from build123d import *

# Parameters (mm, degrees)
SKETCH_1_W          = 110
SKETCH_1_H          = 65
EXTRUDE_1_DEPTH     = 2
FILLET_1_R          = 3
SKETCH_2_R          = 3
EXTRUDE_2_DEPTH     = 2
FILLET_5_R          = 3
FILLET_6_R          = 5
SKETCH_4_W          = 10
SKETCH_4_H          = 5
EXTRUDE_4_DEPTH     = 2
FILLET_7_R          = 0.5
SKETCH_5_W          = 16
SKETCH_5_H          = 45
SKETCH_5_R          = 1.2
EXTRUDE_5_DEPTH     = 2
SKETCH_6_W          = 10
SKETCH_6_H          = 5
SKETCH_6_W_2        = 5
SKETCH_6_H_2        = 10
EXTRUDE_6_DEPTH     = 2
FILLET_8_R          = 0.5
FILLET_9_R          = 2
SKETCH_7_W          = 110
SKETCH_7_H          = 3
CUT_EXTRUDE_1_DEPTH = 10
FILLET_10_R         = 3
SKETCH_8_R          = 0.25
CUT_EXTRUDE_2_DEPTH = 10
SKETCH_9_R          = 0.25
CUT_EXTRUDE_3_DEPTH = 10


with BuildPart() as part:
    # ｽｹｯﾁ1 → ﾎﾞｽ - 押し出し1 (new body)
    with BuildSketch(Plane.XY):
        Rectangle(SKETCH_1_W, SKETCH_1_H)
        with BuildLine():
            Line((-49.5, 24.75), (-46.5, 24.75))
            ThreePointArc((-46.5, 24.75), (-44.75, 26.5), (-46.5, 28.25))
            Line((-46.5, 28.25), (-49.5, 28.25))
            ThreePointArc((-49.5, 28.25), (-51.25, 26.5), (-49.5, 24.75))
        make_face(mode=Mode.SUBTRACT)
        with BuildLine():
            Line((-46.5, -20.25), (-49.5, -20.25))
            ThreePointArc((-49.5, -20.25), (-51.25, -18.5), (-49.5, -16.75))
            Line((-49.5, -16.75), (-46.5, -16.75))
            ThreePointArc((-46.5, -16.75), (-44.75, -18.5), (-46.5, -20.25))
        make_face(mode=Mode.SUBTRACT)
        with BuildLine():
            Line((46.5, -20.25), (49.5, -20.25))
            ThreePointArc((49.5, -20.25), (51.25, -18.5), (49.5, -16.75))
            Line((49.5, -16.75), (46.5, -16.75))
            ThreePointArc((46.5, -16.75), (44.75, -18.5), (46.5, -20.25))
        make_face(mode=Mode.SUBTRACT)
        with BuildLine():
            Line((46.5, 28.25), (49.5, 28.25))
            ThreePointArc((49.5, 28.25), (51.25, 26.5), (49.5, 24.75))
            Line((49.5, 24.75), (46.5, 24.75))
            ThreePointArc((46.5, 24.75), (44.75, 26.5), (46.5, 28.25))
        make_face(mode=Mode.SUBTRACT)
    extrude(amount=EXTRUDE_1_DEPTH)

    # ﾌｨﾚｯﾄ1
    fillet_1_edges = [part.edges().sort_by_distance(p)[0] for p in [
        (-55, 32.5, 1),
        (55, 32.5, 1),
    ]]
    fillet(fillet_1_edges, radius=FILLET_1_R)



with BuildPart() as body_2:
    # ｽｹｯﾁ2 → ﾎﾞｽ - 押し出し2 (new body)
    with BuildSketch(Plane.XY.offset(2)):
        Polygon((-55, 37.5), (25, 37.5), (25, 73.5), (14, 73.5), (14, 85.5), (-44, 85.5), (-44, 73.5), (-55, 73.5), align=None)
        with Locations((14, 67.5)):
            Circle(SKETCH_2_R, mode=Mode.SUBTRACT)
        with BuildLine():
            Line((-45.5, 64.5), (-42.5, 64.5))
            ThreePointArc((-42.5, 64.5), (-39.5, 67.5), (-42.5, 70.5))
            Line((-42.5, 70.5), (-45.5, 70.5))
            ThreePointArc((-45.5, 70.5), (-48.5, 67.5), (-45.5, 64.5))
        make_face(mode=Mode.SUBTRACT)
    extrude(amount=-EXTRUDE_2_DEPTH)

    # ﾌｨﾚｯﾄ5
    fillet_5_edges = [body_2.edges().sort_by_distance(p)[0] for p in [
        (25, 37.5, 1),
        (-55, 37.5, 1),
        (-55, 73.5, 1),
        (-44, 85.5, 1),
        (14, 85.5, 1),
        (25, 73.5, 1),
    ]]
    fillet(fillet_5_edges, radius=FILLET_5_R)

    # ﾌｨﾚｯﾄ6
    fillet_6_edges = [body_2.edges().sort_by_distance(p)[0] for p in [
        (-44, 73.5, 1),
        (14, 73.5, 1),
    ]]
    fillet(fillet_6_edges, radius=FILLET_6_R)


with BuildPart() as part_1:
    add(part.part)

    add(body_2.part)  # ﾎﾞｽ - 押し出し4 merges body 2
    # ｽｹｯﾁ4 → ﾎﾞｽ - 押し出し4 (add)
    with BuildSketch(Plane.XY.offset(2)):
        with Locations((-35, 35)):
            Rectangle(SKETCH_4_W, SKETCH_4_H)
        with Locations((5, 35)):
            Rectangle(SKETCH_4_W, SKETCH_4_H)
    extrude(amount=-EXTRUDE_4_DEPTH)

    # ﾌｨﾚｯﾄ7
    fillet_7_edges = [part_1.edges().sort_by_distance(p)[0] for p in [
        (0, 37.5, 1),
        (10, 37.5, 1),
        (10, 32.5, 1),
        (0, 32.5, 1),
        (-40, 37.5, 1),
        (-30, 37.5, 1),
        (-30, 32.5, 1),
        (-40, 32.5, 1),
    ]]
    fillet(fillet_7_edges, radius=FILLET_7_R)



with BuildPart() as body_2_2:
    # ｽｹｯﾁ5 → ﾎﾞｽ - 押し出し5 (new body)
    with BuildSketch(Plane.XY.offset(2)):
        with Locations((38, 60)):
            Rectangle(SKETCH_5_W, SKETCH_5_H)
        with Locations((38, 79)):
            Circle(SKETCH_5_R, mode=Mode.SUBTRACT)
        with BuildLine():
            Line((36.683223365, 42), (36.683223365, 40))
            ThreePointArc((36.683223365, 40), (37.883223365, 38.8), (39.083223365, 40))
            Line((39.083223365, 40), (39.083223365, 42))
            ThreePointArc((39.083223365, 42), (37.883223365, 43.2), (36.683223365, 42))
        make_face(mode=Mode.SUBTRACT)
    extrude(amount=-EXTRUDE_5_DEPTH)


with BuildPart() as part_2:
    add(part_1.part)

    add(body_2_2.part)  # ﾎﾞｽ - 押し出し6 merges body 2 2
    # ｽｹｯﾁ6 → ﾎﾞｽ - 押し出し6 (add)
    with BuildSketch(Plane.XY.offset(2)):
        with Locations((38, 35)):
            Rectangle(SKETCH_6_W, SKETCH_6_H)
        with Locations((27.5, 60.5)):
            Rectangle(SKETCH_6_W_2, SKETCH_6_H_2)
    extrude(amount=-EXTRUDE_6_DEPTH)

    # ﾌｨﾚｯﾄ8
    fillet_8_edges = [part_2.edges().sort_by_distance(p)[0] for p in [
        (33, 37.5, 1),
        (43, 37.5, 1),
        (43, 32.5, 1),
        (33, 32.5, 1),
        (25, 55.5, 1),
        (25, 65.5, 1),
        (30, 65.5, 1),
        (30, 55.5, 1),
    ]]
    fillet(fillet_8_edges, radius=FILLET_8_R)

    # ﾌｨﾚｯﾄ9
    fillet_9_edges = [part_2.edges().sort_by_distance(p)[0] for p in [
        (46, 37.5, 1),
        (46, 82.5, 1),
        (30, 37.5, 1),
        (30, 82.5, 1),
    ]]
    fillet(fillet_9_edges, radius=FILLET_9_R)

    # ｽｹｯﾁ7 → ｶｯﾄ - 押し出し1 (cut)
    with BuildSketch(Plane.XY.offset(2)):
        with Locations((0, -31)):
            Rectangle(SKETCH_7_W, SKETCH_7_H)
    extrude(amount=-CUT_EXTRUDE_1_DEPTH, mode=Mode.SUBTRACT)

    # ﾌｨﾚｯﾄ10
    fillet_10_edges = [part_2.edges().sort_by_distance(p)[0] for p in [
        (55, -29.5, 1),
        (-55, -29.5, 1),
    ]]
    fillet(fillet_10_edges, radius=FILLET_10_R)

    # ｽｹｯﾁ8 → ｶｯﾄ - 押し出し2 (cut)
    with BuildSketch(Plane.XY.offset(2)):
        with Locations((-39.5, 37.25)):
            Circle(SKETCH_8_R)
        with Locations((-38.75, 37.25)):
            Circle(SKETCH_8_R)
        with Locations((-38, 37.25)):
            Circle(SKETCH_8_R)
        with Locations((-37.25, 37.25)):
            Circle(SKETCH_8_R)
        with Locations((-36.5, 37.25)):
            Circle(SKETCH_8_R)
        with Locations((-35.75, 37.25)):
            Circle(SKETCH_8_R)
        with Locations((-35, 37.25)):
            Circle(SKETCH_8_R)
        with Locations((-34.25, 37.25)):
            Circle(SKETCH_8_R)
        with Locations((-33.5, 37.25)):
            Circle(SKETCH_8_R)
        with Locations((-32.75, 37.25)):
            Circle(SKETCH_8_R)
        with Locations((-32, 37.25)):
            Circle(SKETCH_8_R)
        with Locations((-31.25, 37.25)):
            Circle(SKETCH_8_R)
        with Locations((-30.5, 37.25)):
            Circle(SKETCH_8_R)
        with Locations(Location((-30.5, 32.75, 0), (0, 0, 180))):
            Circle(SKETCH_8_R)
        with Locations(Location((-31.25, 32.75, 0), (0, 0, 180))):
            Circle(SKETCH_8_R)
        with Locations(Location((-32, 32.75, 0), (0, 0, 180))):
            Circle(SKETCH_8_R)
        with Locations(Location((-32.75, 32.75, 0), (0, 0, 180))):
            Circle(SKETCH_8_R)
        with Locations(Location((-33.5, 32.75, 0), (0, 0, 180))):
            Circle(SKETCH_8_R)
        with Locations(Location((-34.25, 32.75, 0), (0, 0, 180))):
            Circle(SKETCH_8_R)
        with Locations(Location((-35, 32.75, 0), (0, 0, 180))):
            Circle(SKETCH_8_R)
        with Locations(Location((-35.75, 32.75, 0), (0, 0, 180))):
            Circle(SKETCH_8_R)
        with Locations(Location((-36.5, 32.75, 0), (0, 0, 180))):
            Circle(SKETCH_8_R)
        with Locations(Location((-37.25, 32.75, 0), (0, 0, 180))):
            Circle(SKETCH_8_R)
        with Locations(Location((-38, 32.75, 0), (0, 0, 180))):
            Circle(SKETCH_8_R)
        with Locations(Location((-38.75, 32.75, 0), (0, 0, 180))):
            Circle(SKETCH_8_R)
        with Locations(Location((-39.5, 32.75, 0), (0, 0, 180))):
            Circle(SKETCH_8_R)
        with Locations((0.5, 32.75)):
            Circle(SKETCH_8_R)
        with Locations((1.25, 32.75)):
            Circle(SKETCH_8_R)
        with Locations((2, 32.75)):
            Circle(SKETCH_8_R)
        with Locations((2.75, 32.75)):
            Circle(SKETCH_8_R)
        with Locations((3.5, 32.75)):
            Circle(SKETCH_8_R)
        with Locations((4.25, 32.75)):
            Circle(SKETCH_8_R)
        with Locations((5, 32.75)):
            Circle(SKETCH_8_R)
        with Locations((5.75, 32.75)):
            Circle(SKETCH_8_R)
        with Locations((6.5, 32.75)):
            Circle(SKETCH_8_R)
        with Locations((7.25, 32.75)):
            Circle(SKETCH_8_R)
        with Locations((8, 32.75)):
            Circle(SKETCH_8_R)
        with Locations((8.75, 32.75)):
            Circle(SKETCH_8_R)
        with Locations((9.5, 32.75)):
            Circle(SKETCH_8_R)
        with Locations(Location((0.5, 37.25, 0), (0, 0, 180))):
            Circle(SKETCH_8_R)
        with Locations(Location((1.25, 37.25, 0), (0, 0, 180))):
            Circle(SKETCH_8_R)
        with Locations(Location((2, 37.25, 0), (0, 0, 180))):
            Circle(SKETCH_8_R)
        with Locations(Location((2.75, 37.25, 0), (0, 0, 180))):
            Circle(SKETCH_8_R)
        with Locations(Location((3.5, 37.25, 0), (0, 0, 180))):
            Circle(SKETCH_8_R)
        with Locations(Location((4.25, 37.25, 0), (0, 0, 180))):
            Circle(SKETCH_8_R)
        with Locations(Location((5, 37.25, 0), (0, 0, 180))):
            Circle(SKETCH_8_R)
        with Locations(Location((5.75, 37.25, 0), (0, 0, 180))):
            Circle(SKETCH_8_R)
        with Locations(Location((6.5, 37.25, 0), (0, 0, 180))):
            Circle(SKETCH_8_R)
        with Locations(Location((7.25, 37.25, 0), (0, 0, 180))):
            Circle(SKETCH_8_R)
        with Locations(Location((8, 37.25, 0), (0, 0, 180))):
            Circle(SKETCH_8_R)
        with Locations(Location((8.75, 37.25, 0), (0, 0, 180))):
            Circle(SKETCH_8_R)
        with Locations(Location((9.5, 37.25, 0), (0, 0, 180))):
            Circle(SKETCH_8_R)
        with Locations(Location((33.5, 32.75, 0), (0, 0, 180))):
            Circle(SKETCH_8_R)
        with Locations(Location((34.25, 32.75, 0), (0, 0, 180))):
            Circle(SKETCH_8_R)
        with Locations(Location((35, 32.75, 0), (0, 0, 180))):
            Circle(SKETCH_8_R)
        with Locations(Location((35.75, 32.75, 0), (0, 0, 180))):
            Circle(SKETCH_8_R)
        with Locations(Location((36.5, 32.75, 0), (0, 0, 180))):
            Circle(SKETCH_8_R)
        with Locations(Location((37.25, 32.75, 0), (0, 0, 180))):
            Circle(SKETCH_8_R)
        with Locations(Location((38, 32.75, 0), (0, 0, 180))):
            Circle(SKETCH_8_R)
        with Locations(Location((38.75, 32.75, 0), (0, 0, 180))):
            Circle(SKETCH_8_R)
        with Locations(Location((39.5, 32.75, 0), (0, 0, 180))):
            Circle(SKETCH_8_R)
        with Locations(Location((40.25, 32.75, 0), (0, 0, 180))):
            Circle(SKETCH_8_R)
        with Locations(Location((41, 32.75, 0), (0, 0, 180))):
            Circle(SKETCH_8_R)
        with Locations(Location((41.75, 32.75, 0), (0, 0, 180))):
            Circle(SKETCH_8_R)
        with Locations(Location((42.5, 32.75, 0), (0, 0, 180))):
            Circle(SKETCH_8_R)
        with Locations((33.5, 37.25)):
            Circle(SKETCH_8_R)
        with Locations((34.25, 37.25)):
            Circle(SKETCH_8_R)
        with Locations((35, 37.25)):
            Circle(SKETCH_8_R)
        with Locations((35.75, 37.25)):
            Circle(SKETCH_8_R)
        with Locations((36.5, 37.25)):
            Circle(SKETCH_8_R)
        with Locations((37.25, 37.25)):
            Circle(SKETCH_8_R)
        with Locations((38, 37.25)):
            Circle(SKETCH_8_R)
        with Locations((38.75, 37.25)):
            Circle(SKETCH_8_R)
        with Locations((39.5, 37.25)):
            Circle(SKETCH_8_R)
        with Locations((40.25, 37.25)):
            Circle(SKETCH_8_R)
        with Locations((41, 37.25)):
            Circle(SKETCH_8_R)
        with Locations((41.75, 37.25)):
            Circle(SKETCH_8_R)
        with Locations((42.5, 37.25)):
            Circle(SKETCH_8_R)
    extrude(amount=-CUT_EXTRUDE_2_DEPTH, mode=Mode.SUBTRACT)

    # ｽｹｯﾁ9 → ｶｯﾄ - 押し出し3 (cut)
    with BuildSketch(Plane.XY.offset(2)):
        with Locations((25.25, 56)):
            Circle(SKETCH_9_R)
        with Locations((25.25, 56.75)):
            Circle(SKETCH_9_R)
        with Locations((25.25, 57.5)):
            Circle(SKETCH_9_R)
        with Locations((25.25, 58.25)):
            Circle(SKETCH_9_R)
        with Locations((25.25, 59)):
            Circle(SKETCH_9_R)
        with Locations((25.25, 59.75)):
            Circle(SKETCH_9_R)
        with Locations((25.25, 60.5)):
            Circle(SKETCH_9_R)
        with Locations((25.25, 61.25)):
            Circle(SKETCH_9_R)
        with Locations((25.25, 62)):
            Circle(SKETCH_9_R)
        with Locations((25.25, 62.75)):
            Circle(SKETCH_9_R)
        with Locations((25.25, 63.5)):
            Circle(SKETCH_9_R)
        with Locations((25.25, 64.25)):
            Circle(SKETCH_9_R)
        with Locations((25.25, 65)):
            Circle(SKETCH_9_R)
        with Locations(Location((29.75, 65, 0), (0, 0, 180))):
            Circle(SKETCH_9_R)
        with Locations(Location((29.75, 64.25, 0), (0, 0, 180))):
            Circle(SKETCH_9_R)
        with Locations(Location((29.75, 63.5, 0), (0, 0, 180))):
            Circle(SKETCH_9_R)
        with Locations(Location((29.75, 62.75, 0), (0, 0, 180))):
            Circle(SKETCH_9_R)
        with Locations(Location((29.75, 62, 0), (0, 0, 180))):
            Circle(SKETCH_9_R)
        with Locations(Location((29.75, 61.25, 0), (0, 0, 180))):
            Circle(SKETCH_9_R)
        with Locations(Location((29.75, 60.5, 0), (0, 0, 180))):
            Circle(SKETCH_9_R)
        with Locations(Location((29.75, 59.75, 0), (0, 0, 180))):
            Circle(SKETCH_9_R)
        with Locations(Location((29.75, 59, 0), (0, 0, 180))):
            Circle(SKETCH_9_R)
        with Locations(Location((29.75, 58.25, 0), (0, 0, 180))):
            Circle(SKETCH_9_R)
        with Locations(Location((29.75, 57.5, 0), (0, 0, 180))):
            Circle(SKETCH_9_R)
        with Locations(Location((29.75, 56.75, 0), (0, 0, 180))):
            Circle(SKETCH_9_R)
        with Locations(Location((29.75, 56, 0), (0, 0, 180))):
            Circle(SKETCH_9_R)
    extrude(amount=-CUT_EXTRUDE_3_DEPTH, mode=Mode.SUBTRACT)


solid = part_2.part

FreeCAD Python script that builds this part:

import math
import FreeCAD as App
import Part
import Sketcher

V = App.Vector
Q = App.Units.Quantity


def edges_at(feature, points):
    """Names of the edges that pass closest to the given points."""
    edges = feature.Shape.Edges
    near = lambda p: min(range(len(edges)), key=lambda i: edges[i].distToShape(Part.Vertex(*p))[0])
    return sorted({f"Edge{near(p) + 1}" for p in points})


def add_polygon(sketch, points):
    """Adds a closed chain of lines whose ends are joined by coincident constraints."""
    first, n = sketch.GeometryCount, len(points)
    for a, b in zip(points, points[1:] + points[:1]):
        sketch.addGeometry(Part.LineSegment(App.Vector(*a, 0), App.Vector(*b, 0)), False)
    for i in range(n):
        sketch.addConstraint(Sketcher.Constraint("Coincident", first + i, 2, first + (i + 1) % n, 1))

doc = App.newDocument("Part")
body = doc.addObject("PartDesign::Body", "Body")

sketch1 = body.newObject("Sketcher::SketchObject", "Sketch")
sketch1.AttachmentSupport = (doc.getObject("XY_Plane"), [""])
sketch1.MapMode = "FlatFace"
add_polygon(sketch1, [(-55, 32.5), (-55, -32.5), (55, -32.5), (55, 32.5)])
sketch1.addGeometry(Part.ArcOfCircle(Part.Circle(V(-46.5, -18.5, 0), V(0, 0, 1), 1.75), math.radians(-90), math.radians(90)), False)
sketch1.addGeometry(Part.LineSegment(V(-46.5, -20.25, 0), V(-49.5, -20.25, 0)), False)
sketch1.addGeometry(Part.ArcOfCircle(Part.Circle(V(-49.5, -18.5, 0), V(0, 0, 1), 1.75), math.radians(90), math.radians(270)), False)
sketch1.addGeometry(Part.LineSegment(V(-49.5, -16.75, 0), V(-46.5, -16.75, 0)), False)
sketch1.addGeometry(Part.LineSegment(V(49.5, -20.25, 0), V(46.5, -20.25, 0)), False)
sketch1.addGeometry(Part.ArcOfCircle(Part.Circle(V(46.5, -18.5, 0), V(0, 0, 1), 1.75), math.radians(90), math.radians(270)), False)
sketch1.addGeometry(Part.LineSegment(V(46.5, -16.75, 0), V(49.5, -16.75, 0)), False)
sketch1.addGeometry(Part.ArcOfCircle(Part.Circle(V(49.5, -18.5, 0), V(0, 0, 1), 1.75), math.radians(-90), math.radians(90)), False)
sketch1.addGeometry(Part.LineSegment(V(-46.5, 24.75, 0), V(-49.5, 24.75, 0)), False)
sketch1.addGeometry(Part.ArcOfCircle(Part.Circle(V(-49.5, 26.5, 0), V(0, 0, 1), 1.75), math.radians(90), math.radians(270)), False)
sketch1.addGeometry(Part.LineSegment(V(-49.5, 28.25, 0), V(-46.5, 28.25, 0)), False)
sketch1.addGeometry(Part.ArcOfCircle(Part.Circle(V(-46.5, 26.5, 0), V(0, 0, 1), 1.75), math.radians(-90), math.radians(90)), False)
sketch1.addGeometry(Part.ArcOfCircle(Part.Circle(V(46.5, 26.5, 0), V(0, 0, 1), 1.75), math.radians(90), math.radians(270)), False)
sketch1.addGeometry(Part.LineSegment(V(46.5, 28.25, 0), V(49.5, 28.25, 0)), False)
sketch1.addGeometry(Part.ArcOfCircle(Part.Circle(V(49.5, 26.5, 0), V(0, 0, 1), 1.75), math.radians(-90), math.radians(90)), False)
sketch1.addGeometry(Part.LineSegment(V(49.5, 24.75, 0), V(46.5, 24.75, 0)), False)
sketch1.addConstraint([
    Sketcher.Constraint("Tangent", 4, 1, 5, 1),
    Sketcher.Constraint("Tangent", 5, 2, 6, 2),
    Sketcher.Constraint("Tangent", 6, 1, 7, 1),
    Sketcher.Constraint("Tangent", 7, 2, 4, 2),
    Sketcher.Constraint("Tangent", 8, 2, 9, 2),
    Sketcher.Constraint("Tangent", 9, 1, 10, 1),
    Sketcher.Constraint("Tangent", 10, 2, 11, 2),
    Sketcher.Constraint("Tangent", 11, 1, 8, 1),
    Sketcher.Constraint("Tangent", 12, 2, 13, 2),
    Sketcher.Constraint("Tangent", 13, 1, 14, 1),
    Sketcher.Constraint("Tangent", 14, 2, 15, 2),
    Sketcher.Constraint("Tangent", 15, 1, 12, 1),
    Sketcher.Constraint("Tangent", 16, 1, 17, 1),
    Sketcher.Constraint("Tangent", 17, 2, 18, 2),
    Sketcher.Constraint("Tangent", 18, 1, 19, 1),
    Sketcher.Constraint("Tangent", 19, 2, 16, 2),
    Sketcher.Constraint("Vertical", 0),
    Sketcher.Constraint("Horizontal", 1),
    Sketcher.Constraint("Vertical", 2),
    Sketcher.Constraint("Horizontal", 3),
    Sketcher.Constraint("Horizontal", 5),
    Sketcher.Constraint("Horizontal", 7),
    Sketcher.Constraint("Horizontal", 8),
    Sketcher.Constraint("Horizontal", 10),
    Sketcher.Constraint("Horizontal", 12),
    Sketcher.Constraint("Horizontal", 14),
    Sketcher.Constraint("Horizontal", 17),
    Sketcher.Constraint("Horizontal", 19),
    Sketcher.Constraint("Equal", 6, 9),
    Sketcher.Constraint("Equal", 11, 13),
    Sketcher.Constraint("Equal", 15, 16),
    Sketcher.Constraint("Symmetric", 0, 2, 2, 2, -1, 1),
    Sketcher.Constraint("Symmetric", 4, 3, 9, 3, -2),
    Sketcher.Constraint("Symmetric", 15, 3, 16, 3, -2),
    Sketcher.Constraint("Vertical", 6, 3, 13, 3),
    Sketcher.Constraint("Vertical", 4, 3, 15, 3),
    Sketcher.Constraint("Vertical", 11, 3, 18, 3),
    Sketcher.Constraint("Equal", 7, 8),
    Sketcher.Constraint("DistanceX", 1, 1, 1, 2, Q("110 mm")),
    Sketcher.Constraint("DistanceX", 5, 2, 5, 1, Q("3 mm")),
    Sketcher.Constraint("DistanceY", 0, 2, 0, 1, Q("65 mm")),
    Sketcher.Constraint("Radius", 4, Q("1.75 mm")),
    Sketcher.Constraint("DistanceX", 4, 3, 9, 3, Q("93 mm")),
    Sketcher.Constraint("DistanceY", 6, 3, 13, 3, Q("45 mm")),
    Sketcher.Constraint("DistanceY", 0, 2, 6, 3, Q("14 mm")),
])
pad1 = body.newObject("PartDesign::Pad", "Pad")
pad1.Profile = sketch1
pad1.Length = 2
doc.recompute()

fillet = body.newObject("PartDesign::Fillet", "Fillet")
fillet.Base = (pad1, edges_at(pad1, [(-55, 32.5, 1), (55, 32.5, 1)]))
fillet.Radius = 3
body2 = doc.addObject("PartDesign::Body", "Body001")

sketch2 = body2.newObject("Sketcher::SketchObject", "Sketch001")
sketch2.AttachmentSupport = (doc.getObject("XY_Plane001"), [""])
sketch2.MapMode = "FlatFace"
sketch2.AttachmentOffset = App.Placement(V(0, 0, 2), App.Rotation())
add_polygon(sketch2, [(-55, 37.5), (25, 37.5), (25, 73.5), (14, 73.5), (14, 85.5), (-44, 85.5), (-44, 73.5), (-55, 73.5)])
sketch2.addGeometry(Part.LineSegment(V(-42.5, 64.5, 0), V(-45.5, 64.5, 0)), False)
sketch2.addGeometry(Part.ArcOfCircle(Part.Circle(V(-45.5, 67.5, 0), V(0, 0, 1), 3), math.radians(90), math.radians(270)), False)
sketch2.addGeometry(Part.LineSegment(V(-45.5, 70.5, 0), V(-42.5, 70.5, 0)), False)
sketch2.addGeometry(Part.ArcOfCircle(Part.Circle(V(-42.5, 67.5, 0), V(0, 0, 1), 3), math.radians(-90), math.radians(90)), False)
sketch2.addGeometry(Part.Circle(V(14, 67.5, 0), V(0, 0, 1), 3), False)
sketch2.addConstraint([
    Sketcher.Constraint("Tangent", 8, 2, 9, 2),
    Sketcher.Constraint("Tangent", 9, 1, 10, 1),
    Sketcher.Constraint("Tangent", 10, 2, 11, 2),
    Sketcher.Constraint("Tangent", 11, 1, 8, 1),
    Sketcher.Constraint("Horizontal", 0),
    Sketcher.Constraint("Vertical", 1),
    Sketcher.Constraint("Horizontal", 2),
    Sketcher.Constraint("Vertical", 3),
    Sketcher.Constraint("Horizontal", 4),
    Sketcher.Constraint("Vertical", 5),
    Sketcher.Constraint("Horizontal", 6),
    Sketcher.Constraint("Vertical", 7),
    Sketcher.Constraint("Horizontal", 8),
    Sketcher.Constraint("Horizontal", 10),
    Sketcher.Constraint("Equal", 11, 12),
    Sketcher.Constraint("Horizontal", 11, 3, 12, 3),
    Sketcher.Constraint("Horizontal", 2, 2, 5, 2),
    Sketcher.Constraint("Vertical", 12, 3, 2, 2),
    Sketcher.Constraint("Equal", 2, 6),
    Sketcher.Constraint("Diameter", 12, Q("6 mm")),
    Sketcher.Constraint("DistanceX", 0, 1, 0, 2, Q("80 mm")),
    Sketcher.Constraint("DistanceX", 2, 2, 2, 1, Q("11 mm")),
    Sketcher.Constraint("DistanceX", 8, 2, 8, 1, Q("3 mm")),
    Sketcher.Constraint("DistanceY", 1, 1, 1, 2, Q("36 mm")),
    Sketcher.Constraint("DistanceY", 3, 1, 3, 2, Q("12 mm")),
    Sketcher.Constraint("DistanceX", -1, 1, 12, 3, Q("14 mm")),
    Sketcher.Constraint("DistanceY", 0, 2, 12, 3, Q("30 mm")),
    Sketcher.Constraint("DistanceX", 9, 3, -1, 1, Q("45.5 mm")),
    Sketcher.Constraint("DistanceY", -1, 1, 9, 3, Q("67.5 mm")),
])
pad2 = body2.newObject("PartDesign::Pad", "Pad001")
pad2.Profile = sketch2
pad2.Length = 2
pad2.Reversed = True
doc.recompute()

fillet2 = body2.newObject("PartDesign::Fillet", "Fillet001")
fillet2.Base = (pad2, edges_at(pad2, [
    (25, 37.5, 1),
    (-55, 37.5, 1),
    (-55, 73.5, 1),
    (-44, 85.5, 1),
    (14, 85.5, 1),
    (25, 73.5, 1),
]))
fillet2.Radius = 3
doc.recompute()

fillet3 = body2.newObject("PartDesign::Fillet", "Fillet002")
fillet3.Base = (fillet2, edges_at(fillet2, [(-44, 73.5, 1), (14, 73.5, 1)]))
fillet3.Radius = 5
body.AllowCompound = True
doc.recompute()

boolean = body.newObject("PartDesign::Boolean", "Boolean")
boolean.Type = "Fuse"
boolean.addObjects([body2])

sketch3 = body.newObject("Sketcher::SketchObject", "Sketch002")
sketch3.AttachmentSupport = (doc.getObject("XY_Plane"), [""])
sketch3.MapMode = "FlatFace"
sketch3.AttachmentOffset = App.Placement(V(0, 0, 2), App.Rotation())
add_polygon(sketch3, [(-40, 37.5), (-40, 32.5), (-30, 32.5), (-30, 37.5)])
add_polygon(sketch3, [(0, 37.5), (0, 32.5), (10, 32.5), (10, 37.5)])
sketch3.addConstraint([
    Sketcher.Constraint("Vertical", 0),
    Sketcher.Constraint("Horizontal", 1),
    Sketcher.Constraint("Vertical", 2),
    Sketcher.Constraint("Horizontal", 3),
    Sketcher.Constraint("Vertical", 4),
    Sketcher.Constraint("Horizontal", 5),
    Sketcher.Constraint("Vertical", 6),
    Sketcher.Constraint("Horizontal", 7),
    Sketcher.Constraint("PointOnObject", 4, 2, -2),
    Sketcher.Constraint("Horizontal", 1, 2, 4, 2),
    Sketcher.Constraint("Horizontal", 3, 2, 6, 2),
    Sketcher.Constraint("Equal", 3, 5),
    Sketcher.Constraint("DistanceX", 1, 1, 1, 2, Q("10 mm")),
    Sketcher.Constraint("DistanceY", 0, 2, 0, 1, Q("5 mm")),
    Sketcher.Constraint("DistanceX", 0, 2, -1, 1, Q("40 mm")),
    Sketcher.Constraint("DistanceY", -1, 1, 0, 2, Q("32.5 mm")),
])
pad3 = body.newObject("PartDesign::Pad", "Pad002")
pad3.Profile = sketch3
pad3.Length = 2
pad3.Reversed = True
doc.recompute()

fillet4 = body.newObject("PartDesign::Fillet", "Fillet003")
fillet4.Base = (pad3, edges_at(pad3, [
    (0, 37.5, 1),
    (10, 37.5, 1),
    (10, 32.5, 1),
    (0, 32.5, 1),
    (-40, 37.5, 1),
    (-30, 37.5, 1),
    (-30, 32.5, 1),
    (-40, 32.5, 1),
]))
fillet4.Radius = 0.5
body3 = doc.addObject("PartDesign::Body", "Body002")

sketch4 = body3.newObject("Sketcher::SketchObject", "Sketch003")
sketch4.AttachmentSupport = (doc.getObject("XY_Plane002"), [""])
sketch4.MapMode = "FlatFace"
sketch4.AttachmentOffset = App.Placement(V(0, 0, 2), App.Rotation())
add_polygon(sketch4, [(30, 82.5), (30, 37.5), (46, 37.5), (46, 82.5)])
sketch4.addGeometry(Part.LineSegment(V(36.683223, 40, 0), V(36.683223, 42, 0)), False)
sketch4.addGeometry(Part.ArcOfCircle(Part.Circle(V(37.883223, 42, 0), V(0, 0, 1), 1.2), math.radians(0), math.radians(180)), False)
sketch4.addGeometry(Part.LineSegment(V(39.083223, 42, 0), V(39.083223, 40, 0)), False)
sketch4.addGeometry(Part.ArcOfCircle(Part.Circle(V(37.883223, 40, 0), V(0, 0, 1), 1.2), math.radians(180), math.radians(360)), False)
sketch4.addGeometry(Part.Circle(V(38, 79, 0), V(0, 0, 1), 1.2), False)
sketch4.addConstraint([
    Sketcher.Constraint("Tangent", 4, 2, 5, 2),
    Sketcher.Constraint("Tangent", 5, 1, 6, 1),
    Sketcher.Constraint("Tangent", 6, 2, 7, 2),
    Sketcher.Constraint("Tangent", 7, 1, 4, 1),
    Sketcher.Constraint("Vertical", 0),
    Sketcher.Constraint("Horizontal", 1),
    Sketcher.Constraint("Vertical", 2),
    Sketcher.Constraint("Horizontal", 3),
    Sketcher.Constraint("Vertical", 4),
    Sketcher.Constraint("Vertical", 6),
    Sketcher.Constraint("Equal", 7, 8),
    Sketcher.Constraint("Diameter", 8, Q("2.4 mm")),
    Sketcher.Constraint("DistanceX", 1, 1, 1, 2, Q("16 mm")),
    Sketcher.Constraint("DistanceY", 0, 2, 0, 1, Q("45 mm")),
    Sketcher.Constraint("DistanceY", 4, 1, 4, 2, Q("2 mm")),
    Sketcher.Constraint("DistanceY", -1, 1, 5, 3, Q("42 mm")),
    Sketcher.Constraint("DistanceX", -1, 1, 8, 3, Q("38 mm")),
    Sketcher.Constraint("DistanceY", -1, 1, 8, 3, Q("79 mm")),
    Sketcher.Constraint("DistanceX", -1, 1, 0, 2, Q("30 mm")),
    Sketcher.Constraint("DistanceY", -1, 1, 0, 2, Q("37.5 mm")),
    Sketcher.Constraint("DistanceX", -1, 1, 5, 3, Q("37.883223 mm")),
])
pad4 = body3.newObject("PartDesign::Pad", "Pad003")
pad4.Profile = sketch4
pad4.Length = 2
pad4.Reversed = True
body.AllowCompound = True
doc.recompute()

boolean2 = body.newObject("PartDesign::Boolean", "Boolean001")
boolean2.Type = "Fuse"
boolean2.addObjects([body3])

sketch5 = body.newObject("Sketcher::SketchObject", "Sketch004")
sketch5.AttachmentSupport = (doc.getObject("XY_Plane"), [""])
sketch5.MapMode = "FlatFace"
sketch5.AttachmentOffset = App.Placement(V(0, 0, 2), App.Rotation())
add_polygon(sketch5, [(33, 37.5), (33, 32.5), (43, 32.5), (43, 37.5)])
add_polygon(sketch5, [(25, 65.5), (25, 55.5), (30, 55.5), (30, 65.5)])
sketch5.addConstraint([
    Sketcher.Constraint("Vertical", 0),
    Sketcher.Constraint("Horizontal", 1),
    Sketcher.Constraint("Vertical", 2),
    Sketcher.Constraint("Horizontal", 3),
    Sketcher.Constraint("Vertical", 4),
    Sketcher.Constraint("Horizontal", 5),
    Sketcher.Constraint("Vertical", 6),
    Sketcher.Constraint("Horizontal", 7),
    Sketcher.Constraint("Equal", 7, 0),
    Sketcher.Constraint("Equal", 3, 4),
    Sketcher.Constraint("DistanceX", 1, 1, 1, 2, Q("10 mm")),
    Sketcher.Constraint("DistanceX", 5, 1, 5, 2, Q("5 mm")),
    Sketcher.Constraint("DistanceX", -1, 1, 0, 2, Q("33 mm")),
    Sketcher.Constraint("DistanceX", -1, 1, 4, 2, Q("25 mm")),
    Sketcher.Constraint("DistanceY", 3, 2, 4, 2, Q("18 mm")),
    Sketcher.Constraint("DistanceY", -1, 1, 0, 2, Q("32.5 mm")),
])
pad5 = body.newObject("PartDesign::Pad", "Pad004")
pad5.Profile = sketch5
pad5.Length = 2
pad5.Reversed = True
doc.recompute()

fillet5 = body.newObject("PartDesign::Fillet", "Fillet004")
fillet5.Base = (pad5, edges_at(pad5, [
    (33, 37.5, 1),
    (43, 37.5, 1),
    (43, 32.5, 1),
    (33, 32.5, 1),
    (25, 55.5, 1),
    (25, 65.5, 1),
    (30, 65.5, 1),
    (30, 55.5, 1),
]))
fillet5.Radius = 0.5
doc.recompute()

fillet6 = body.newObject("PartDesign::Fillet", "Fillet005")
fillet6.Base = (fillet5, edges_at(fillet5, [
    (46, 37.5, 1),
    (46, 82.5, 1),
    (30, 37.5, 1),
    (30, 82.5, 1),
]))
fillet6.Radius = 2

sketch6 = body.newObject("Sketcher::SketchObject", "Sketch005")
sketch6.AttachmentSupport = (doc.getObject("XY_Plane"), [""])
sketch6.MapMode = "FlatFace"
sketch6.AttachmentOffset = App.Placement(V(0, 0, 2), App.Rotation())
add_polygon(sketch6, [(-55, -29.5), (-55, -32.5), (55, -32.5), (55, -29.5)])
sketch6.addConstraint([
    Sketcher.Constraint("Vertical", 0),
    Sketcher.Constraint("Horizontal", 1),
    Sketcher.Constraint("Vertical", 2),
    Sketcher.Constraint("Horizontal", 3),
    Sketcher.Constraint("DistanceX", 1, 1, 1, 2, Q("110 mm")),
    Sketcher.Constraint("DistanceY", 0, 2, 0, 1, Q("3 mm")),
    Sketcher.Constraint("DistanceX", 0, 2, -1, 1, Q("55 mm")),
    Sketcher.Constraint("DistanceY", 0, 2, -1, 1, Q("32.5 mm")),
])
pocket1 = body.newObject("PartDesign::Pocket", "Pocket")
pocket1.Profile = sketch6
pocket1.Length = 10
doc.recompute()

fillet7 = body.newObject("PartDesign::Fillet", "Fillet006")
fillet7.Base = (pocket1, edges_at(pocket1, [(55, -29.5, 1), (-55, -29.5, 1)]))
fillet7.Radius = 3

sketch7 = body.newObject("Sketcher::SketchObject", "Sketch006")
sketch7.AttachmentSupport = (doc.getObject("XY_Plane"), [""])
sketch7.MapMode = "FlatFace"
sketch7.AttachmentOffset = App.Placement(V(0, 0, 2), App.Rotation())
sketch7.addGeometry([
    Part.Circle(V(-39.5, 37.25, 0), V(0, 0, 1), 0.25),
    Part.Circle(V(-38.75, 37.25, 0), V(0, 0, 1), 0.25),
    Part.Circle(V(-38, 37.25, 0), V(0, 0, 1), 0.25),
    Part.Circle(V(-37.25, 37.25, 0), V(0, 0, 1), 0.25),
    Part.Circle(V(-36.5, 37.25, 0), V(0, 0, 1), 0.25),
    Part.Circle(V(-35.75, 37.25, 0), V(0, 0, 1), 0.25),
    Part.Circle(V(-35, 37.25, 0), V(0, 0, 1), 0.25),
    Part.Circle(V(-34.25, 37.25, 0), V(0, 0, 1), 0.25),
    Part.Circle(V(-33.5, 37.25, 0), V(0, 0, 1), 0.25),
    Part.Circle(V(-32.75, 37.25, 0), V(0, 0, 1), 0.25),
    Part.Circle(V(-32, 37.25, 0), V(0, 0, 1), 0.25),
    Part.Circle(V(-31.25, 37.25, 0), V(0, 0, 1), 0.25),
    Part.Circle(V(-30.5, 37.25, 0), V(0, 0, 1), 0.25),
    Part.Circle(V(-30.5, 32.75, 0), V(0, 0, 1), 0.25),
    Part.Circle(V(-31.25, 32.75, 0), V(0, 0, 1), 0.25),
    Part.Circle(V(-32, 32.75, 0), V(0, 0, 1), 0.25),
    Part.Circle(V(-32.75, 32.75, 0), V(0, 0, 1), 0.25),
    Part.Circle(V(-33.5, 32.75, 0), V(0, 0, 1), 0.25),
    Part.Circle(V(-34.25, 32.75, 0), V(0, 0, 1), 0.25),
    Part.Circle(V(-35, 32.75, 0), V(0, 0, 1), 0.25),
    Part.Circle(V(-35.75, 32.75, 0), V(0, 0, 1), 0.25),
    Part.Circle(V(-36.5, 32.75, 0), V(0, 0, 1), 0.25),
    Part.Circle(V(-37.25, 32.75, 0), V(0, 0, 1), 0.25),
    Part.Circle(V(-38, 32.75, 0), V(0, 0, 1), 0.25),
    Part.Circle(V(-38.75, 32.75, 0), V(0, 0, 1), 0.25),
    Part.Circle(V(-39.5, 32.75, 0), V(0, 0, 1), 0.25),
    Part.Circle(V(0.5, 32.75, 0), V(0, 0, 1), 0.25),
    Part.Circle(V(1.25, 32.75, 0), V(0, 0, 1), 0.25),
    Part.Circle(V(2, 32.75, 0), V(0, 0, 1), 0.25),
    Part.Circle(V(2.75, 32.75, 0), V(0, 0, 1), 0.25),
    Part.Circle(V(3.5, 32.75, 0), V(0, 0, 1), 0.25),
    Part.Circle(V(4.25, 32.75, 0), V(0, 0, 1), 0.25),
    Part.Circle(V(5, 32.75, 0), V(0, 0, 1), 0.25),
    Part.Circle(V(5.75, 32.75, 0), V(0, 0, 1), 0.25),
    Part.Circle(V(6.5, 32.75, 0), V(0, 0, 1), 0.25),
    Part.Circle(V(7.25, 32.75, 0), V(0, 0, 1), 0.25),
    Part.Circle(V(8, 32.75, 0), V(0, 0, 1), 0.25),
    Part.Circle(V(8.75, 32.75, 0), V(0, 0, 1), 0.25),
    Part.Circle(V(9.5, 32.75, 0), V(0, 0, 1), 0.25),
    Part.Circle(V(0.5, 37.25, 0), V(0, 0, 1), 0.25),
    Part.Circle(V(1.25, 37.25, 0), V(0, 0, 1), 0.25),
    Part.Circle(V(2, 37.25, 0), V(0, 0, 1), 0.25),
    Part.Circle(V(2.75, 37.25, 0), V(0, 0, 1), 0.25),
    Part.Circle(V(3.5, 37.25, 0), V(0, 0, 1), 0.25),
    Part.Circle(V(4.25, 37.25, 0), V(0, 0, 1), 0.25),
    Part.Circle(V(5, 37.25, 0), V(0, 0, 1), 0.25),
    Part.Circle(V(5.75, 37.25, 0), V(0, 0, 1), 0.25),
    Part.Circle(V(6.5, 37.25, 0), V(0, 0, 1), 0.25),
    Part.Circle(V(7.25, 37.25, 0), V(0, 0, 1), 0.25),
    Part.Circle(V(8, 37.25, 0), V(0, 0, 1), 0.25),
    Part.Circle(V(8.75, 37.25, 0), V(0, 0, 1), 0.25),
    Part.Circle(V(9.5, 37.25, 0), V(0, 0, 1), 0.25),
    Part.Circle(V(33.5, 32.75, 0), V(0, 0, 1), 0.25),
    Part.Circle(V(34.25, 32.75, 0), V(0, 0, 1), 0.25),
    Part.Circle(V(35, 32.75, 0), V(0, 0, 1), 0.25),
    Part.Circle(V(35.75, 32.75, 0), V(0, 0, 1), 0.25),
    Part.Circle(V(36.5, 32.75, 0), V(0, 0, 1), 0.25),
    Part.Circle(V(37.25, 32.75, 0), V(0, 0, 1), 0.25),
    Part.Circle(V(38, 32.75, 0), V(0, 0, 1), 0.25),
    Part.Circle(V(38.75, 32.75, 0), V(0, 0, 1), 0.25),
    Part.Circle(V(39.5, 32.75, 0), V(0, 0, 1), 0.25),
    Part.Circle(V(40.25, 32.75, 0), V(0, 0, 1), 0.25),
    Part.Circle(V(41, 32.75, 0), V(0, 0, 1), 0.25),
    Part.Circle(V(41.75, 32.75, 0), V(0, 0, 1), 0.25),
    Part.Circle(V(42.5, 32.75, 0), V(0, 0, 1), 0.25),
    Part.Circle(V(33.5, 37.25, 0), V(0, 0, 1), 0.25),
    Part.Circle(V(34.25, 37.25, 0), V(0, 0, 1), 0.25),
    Part.Circle(V(35, 37.25, 0), V(0, 0, 1), 0.25),
    Part.Circle(V(35.75, 37.25, 0), V(0, 0, 1), 0.25),
    Part.Circle(V(36.5, 37.25, 0), V(0, 0, 1), 0.25),
    Part.Circle(V(37.25, 37.25, 0), V(0, 0, 1), 0.25),
    Part.Circle(V(38, 37.25, 0), V(0, 0, 1), 0.25),
    Part.Circle(V(38.75, 37.25, 0), V(0, 0, 1), 0.25),
    Part.Circle(V(39.5, 37.25, 0), V(0, 0, 1), 0.25),
    Part.Circle(V(40.25, 37.25, 0), V(0, 0, 1), 0.25),
    Part.Circle(V(41, 37.25, 0), V(0, 0, 1), 0.25),
    Part.Circle(V(41.75, 37.25, 0), V(0, 0, 1), 0.25),
    Part.Circle(V(42.5, 37.25, 0), V(0, 0, 1), 0.25),
], False)
sketch7.addConstraint([
    Sketcher.Constraint("Equal", 0, 1),
    Sketcher.Constraint("Equal", 1, 2),
    Sketcher.Constraint("Equal", 2, 3),
    Sketcher.Constraint("Equal", 3, 4),
    Sketcher.Constraint("Equal", 4, 5),
    Sketcher.Constraint("Equal", 5, 6),
    Sketcher.Constraint("Equal", 6, 7),
    Sketcher.Constraint("Equal", 7, 8),
    Sketcher.Constraint("Equal", 8, 9),
    Sketcher.Constraint("Equal", 9, 10),
    Sketcher.Constraint("Equal", 10, 11),
    Sketcher.Constraint("Equal", 11, 12),
    Sketcher.Constraint("Equal", 12, 13),
    Sketcher.Constraint("Equal", 13, 14),
    Sketcher.Constraint("Equal", 14, 15),
    Sketcher.Constraint("Equal", 15, 16),
    Sketcher.Constraint("Equal", 16, 17),
    Sketcher.Constraint("Equal", 17, 18),
    Sketcher.Constraint("Equal", 18, 19),
    Sketcher.Constraint("Equal", 19, 20),
    Sketcher.Constraint("Equal", 20, 21),
    Sketcher.Constraint("Equal", 21, 22),
    Sketcher.Constraint("Equal", 22, 23),
    Sketcher.Constraint("Equal", 23, 24),
    Sketcher.Constraint("Equal", 24, 25),
    Sketcher.Constraint("Equal", 25, 26),
    Sketcher.Constraint("Equal", 26, 27),
    Sketcher.Constraint("Equal", 27, 28),
    Sketcher.Constraint("Equal", 28, 29),
    Sketcher.Constraint("Equal", 29, 30),
    Sketcher.Constraint("Equal", 30, 31),
    Sketcher.Constraint("Equal", 31, 32),
    Sketcher.Constraint("Equal", 32, 33),
    Sketcher.Constraint("Equal", 33, 34),
    Sketcher.Constraint("Equal", 34, 35),
    Sketcher.Constraint("Equal", 35, 36),
    Sketcher.Constraint("Equal", 36, 37),
    Sketcher.Constraint("Equal", 37, 38),
    Sketcher.Constraint("Equal", 38, 39),
    Sketcher.Constraint("Equal", 39, 40),
    Sketcher.Constraint("Equal", 40, 41),
    Sketcher.Constraint("Equal", 41, 42),
    Sketcher.Constraint("Equal", 42, 43),
    Sketcher.Constraint("Equal", 43, 44),
    Sketcher.Constraint("Equal", 44, 45),
    Sketcher.Constraint("Equal", 45, 46),
    Sketcher.Constraint("Equal", 46, 47),
    Sketcher.Constraint("Equal", 47, 48),
    Sketcher.Constraint("Equal", 48, 49),
    Sketcher.Constraint("Equal", 49, 50),
    Sketcher.Constraint("Equal", 50, 51),
    Sketcher.Constraint("Equal", 51, 52),
    Sketcher.Constraint("Equal", 52, 53),
    Sketcher.Constraint("Equal", 53, 54),
    Sketcher.Constraint("Equal", 54, 55),
    Sketcher.Constraint("Equal", 55, 56),
    Sketcher.Constraint("Equal", 56, 57),
    Sketcher.Constraint("Equal", 57, 58),
    Sketcher.Constraint("Equal", 58, 59),
    Sketcher.Constraint("Equal", 59, 60),
    Sketcher.Constraint("Equal", 60, 61),
    Sketcher.Constraint("Equal", 61, 62),
    Sketcher.Constraint("Equal", 62, 63),
    Sketcher.Constraint("Equal", 63, 64),
    Sketcher.Constraint("Equal", 64, 65),
    Sketcher.Constraint("Equal", 65, 66),
    Sketcher.Constraint("Equal", 66, 67),
    Sketcher.Constraint("Equal", 67, 68),
    Sketcher.Constraint("Equal", 68, 69),
    Sketcher.Constraint("Equal", 69, 70),
    Sketcher.Constraint("Equal", 70, 71),
    Sketcher.Constraint("Equal", 71, 72),
    Sketcher.Constraint("Equal", 72, 73),
    Sketcher.Constraint("Equal", 73, 74),
    Sketcher.Constraint("Equal", 74, 75),
    Sketcher.Constraint("Equal", 75, 76),
    Sketcher.Constraint("Equal", 76, 77),
    Sketcher.Constraint("Symmetric", 17, 3, 52, 3, -2),
    Sketcher.Constraint("Symmetric", 18, 3, 53, 3, -2),
    Sketcher.Constraint("Symmetric", 19, 3, 54, 3, -2),
    Sketcher.Constraint("Symmetric", 20, 3, 55, 3, -2),
    Sketcher.Constraint("Symmetric", 21, 3, 56, 3, -2),
    Sketcher.Constraint("Symmetric", 22, 3, 57, 3, -2),
    Sketcher.Constraint("Symmetric", 23, 3, 58, 3, -2),
    Sketcher.Constraint("Symmetric", 24, 3, 59, 3, -2),
    Sketcher.Constraint("Symmetric", 25, 3, 60, 3, -2),
    Sketcher.Constraint("Symmetric", 8, 3, 65, 3, -2),
    Sketcher.Constraint("Symmetric", 7, 3, 66, 3, -2),
    Sketcher.Constraint("Symmetric", 6, 3, 67, 3, -2),
    Sketcher.Constraint("Symmetric", 5, 3, 68, 3, -2),
    Sketcher.Constraint("Symmetric", 4, 3, 69, 3, -2),
    Sketcher.Constraint("Symmetric", 3, 3, 70, 3, -2),
    Sketcher.Constraint("Symmetric", 2, 3, 71, 3, -2),
    Sketcher.Constraint("Symmetric", 1, 3, 72, 3, -2),
    Sketcher.Constraint("Symmetric", 0, 3, 73, 3, -2),
    Sketcher.Constraint("Horizontal", 0, 3, 1, 3),
    Sketcher.Constraint("Horizontal", 1, 3, 2, 3),
    Sketcher.Constraint("Horizontal", 2, 3, 3, 3),
    Sketcher.Constraint("Horizontal", 3, 3, 4, 3),
    Sketcher.Constraint("Horizontal", 4, 3, 5, 3),
    Sketcher.Constraint("Horizontal", 5, 3, 6, 3),
    Sketcher.Constraint("Horizontal", 6, 3, 7, 3),
    Sketcher.Constraint("Horizontal", 7, 3, 8, 3),
    Sketcher.Constraint("Horizontal", 8, 3, 9, 3),
    Sketcher.Constraint("Horizontal", 9, 3, 10, 3),
    Sketcher.Constraint("Horizontal", 10, 3, 11, 3),
    Sketcher.Constraint("Horizontal", 11, 3, 12, 3),
    Sketcher.Constraint("Horizontal", 13, 3, 14, 3),
    Sketcher.Constraint("Horizontal", 14, 3, 15, 3),
    Sketcher.Constraint("Horizontal", 15, 3, 16, 3),
    Sketcher.Constraint("Horizontal", 16, 3, 17, 3),
    Sketcher.Constraint("Horizontal", 17, 3, 18, 3),
    Sketcher.Constraint("Horizontal", 18, 3, 19, 3),
    Sketcher.Constraint("Horizontal", 19, 3, 20, 3),
    Sketcher.Constraint("Horizontal", 20, 3, 21, 3),
    Sketcher.Constraint("Horizontal", 21, 3, 22, 3),
    Sketcher.Constraint("Horizontal", 22, 3, 23, 3),
    Sketcher.Constraint("Horizontal", 23, 3, 24, 3),
    Sketcher.Constraint("Horizontal", 24, 3, 25, 3),
    Sketcher.Constraint("Horizontal", 25, 3, 26, 3),
    Sketcher.Constraint("Horizontal", 26, 3, 27, 3),
    Sketcher.Constraint("Horizontal", 27, 3, 28, 3),
    Sketcher.Constraint("Horizontal", 28, 3, 29, 3),
    Sketcher.Constraint("Horizontal", 29, 3, 30, 3),
    Sketcher.Constraint("Horizontal", 30, 3, 31, 3),
    Sketcher.Constraint("Horizontal", 31, 3, 32, 3),
    Sketcher.Constraint("Horizontal", 32, 3, 33, 3),
    Sketcher.Constraint("Horizontal", 33, 3, 34, 3),
    Sketcher.Constraint("Horizontal", 34, 3, 35, 3),
    Sketcher.Constraint("Horizontal", 35, 3, 36, 3),
    Sketcher.Constraint("Horizontal", 36, 3, 37, 3),
    Sketcher.Constraint("Horizontal", 37, 3, 38, 3),
    Sketcher.Constraint("Horizontal", 12, 3, 39, 3),
    Sketcher.Constraint("Horizontal", 39, 3, 40, 3),
    Sketcher.Constraint("Horizontal", 40, 3, 41, 3),
    Sketcher.Constraint("Horizontal", 41, 3, 42, 3),
    Sketcher.Constraint("Horizontal", 42, 3, 43, 3),
    Sketcher.Constraint("Horizontal", 43, 3, 44, 3),
    Sketcher.Constraint("Horizontal", 44, 3, 45, 3),
    Sketcher.Constraint("Horizontal", 45, 3, 46, 3),
    Sketcher.Constraint("Horizontal", 46, 3, 47, 3),
    Sketcher.Constraint("Horizontal", 47, 3, 48, 3),
    Sketcher.Constraint("Horizontal", 48, 3, 49, 3),
    Sketcher.Constraint("Horizontal", 49, 3, 50, 3),
    Sketcher.Constraint("Horizontal", 50, 3, 51, 3),
    Sketcher.Constraint("Horizontal", 60, 3, 61, 3),
    Sketcher.Constraint("Horizontal", 61, 3, 62, 3),
    Sketcher.Constraint("Horizontal", 62, 3, 63, 3),
    Sketcher.Constraint("Horizontal", 63, 3, 64, 3),
    Sketcher.Constraint("Horizontal", 73, 3, 74, 3),
    Sketcher.Constraint("Horizontal", 74, 3, 75, 3),
    Sketcher.Constraint("Horizontal", 75, 3, 76, 3),
    Sketcher.Constraint("Horizontal", 76, 3, 77, 3),
    Sketcher.Constraint("Vertical", 12, 3, 13, 3),
    Sketcher.Constraint("Vertical", 11, 3, 14, 3),
    Sketcher.Constraint("Vertical", 10, 3, 15, 3),
    Sketcher.Constraint("Vertical", 9, 3, 16, 3),
    Sketcher.Constraint("Vertical", 8, 3, 17, 3),
    Sketcher.Constraint("Vertical", 7, 3, 18, 3),
    Sketcher.Constraint("Vertical", 6, 3, 19, 3),
    Sketcher.Constraint("Vertical", 5, 3, 20, 3),
    Sketcher.Constraint("Vertical", 4, 3, 21, 3),
    Sketcher.Constraint("Vertical", 3, 3, 22, 3),
    Sketcher.Constraint("Vertical", 2, 3, 23, 3),
    Sketcher.Constraint("Vertical", 1, 3, 24, 3),
    Sketcher.Constraint("Vertical", 0, 3, 25, 3),
    Sketcher.Constraint("Vertical", 26, 3, 39, 3),
    Sketcher.Constraint("Vertical", 27, 3, 40, 3),
    Sketcher.Constraint("Vertical", 28, 3, 41, 3),
    Sketcher.Constraint("Vertical", 29, 3, 42, 3),
    Sketcher.Constraint("Vertical", 30, 3, 43, 3),
    Sketcher.Constraint("Vertical", 31, 3, 44, 3),
    Sketcher.Constraint("Vertical", 32, 3, 45, 3),
    Sketcher.Constraint("Vertical", 33, 3, 46, 3),
    Sketcher.Constraint("Vertical", 34, 3, 47, 3),
    Sketcher.Constraint("Vertical", 35, 3, 48, 3),
    Sketcher.Constraint("Vertical", 36, 3, 49, 3),
    Sketcher.Constraint("Vertical", 37, 3, 50, 3),
    Sketcher.Constraint("Vertical", 38, 3, 51, 3),
    Sketcher.Constraint("Vertical", 61, 3, 74, 3),
    Sketcher.Constraint("Vertical", 62, 3, 75, 3),
    Sketcher.Constraint("Vertical", 63, 3, 76, 3),
    Sketcher.Constraint("Vertical", 64, 3, 77, 3),
    Sketcher.Constraint("Diameter", 0, Q("0.5 mm")),
    Sketcher.Constraint("DistanceX", 2, 3, -1, 1, Q("38 mm")),
    Sketcher.Constraint("DistanceX", 6, 3, -1, 1, Q("35 mm")),
    Sketcher.Constraint("DistanceX", 10, 3, -1, 1, Q("32 mm")),
    Sketcher.Constraint("DistanceX", -1, 1, 28, 3, Q("2 mm")),
    Sketcher.Constraint("DistanceX", -1, 1, 32, 3, Q("5 mm")),
    Sketcher.Constraint("DistanceX", -1, 1, 36, 3, Q("8 mm")),
    Sketcher.Constraint("DistanceX", -1, 1, 62, 3, Q("41 mm")),
    Sketcher.Constraint("DistanceX", 0, 3, -1, 1, Q("39.5 mm")),
    Sketcher.Constraint("DistanceX", 4, 3, -1, 1, Q("36.5 mm")),
    Sketcher.Constraint("DistanceX", 8, 3, -1, 1, Q("33.5 mm")),
    Sketcher.Constraint("DistanceX", 12, 3, -1, 1, Q("30.5 mm")),
    Sketcher.Constraint("DistanceX", -1, 1, 26, 3, Q("0.5 mm")),
    Sketcher.Constraint("DistanceX", -1, 1, 30, 3, Q("3.5 mm")),
    Sketcher.Constraint("DistanceX", -1, 1, 34, 3, Q("6.5 mm")),
    Sketcher.Constraint("DistanceX", -1, 1, 38, 3, Q("9.5 mm")),
    Sketcher.Constraint("DistanceX", -1, 1, 64, 3, Q("42.5 mm")),
    Sketcher.Constraint("DistanceY", -1, 1, 0, 3, Q("37.25 mm")),
    Sketcher.Constraint("DistanceX", 1, 3, -1, 1, Q("38.75 mm")),
    Sketcher.Constraint("DistanceX", 3, 3, -1, 1, Q("37.25 mm")),
    Sketcher.Constraint("DistanceX", 5, 3, -1, 1, Q("35.75 mm")),
    Sketcher.Constraint("DistanceX", 7, 3, -1, 1, Q("34.25 mm")),
    Sketcher.Constraint("DistanceX", 9, 3, -1, 1, Q("32.75 mm")),
    Sketcher.Constraint("DistanceX", 11, 3, -1, 1, Q("31.25 mm")),
    Sketcher.Constraint("DistanceY", -1, 1, 13, 3, Q("32.75 mm")),
    Sketcher.Constraint("DistanceX", -1, 1, 27, 3, Q("1.25 mm")),
    Sketcher.Constraint("DistanceX", -1, 1, 29, 3, Q("2.75 mm")),
    Sketcher.Constraint("DistanceX", -1, 1, 31, 3, Q("4.25 mm")),
    Sketcher.Constraint("DistanceX", -1, 1, 33, 3, Q("5.75 mm")),
    Sketcher.Constraint("DistanceX", -1, 1, 35, 3, Q("7.25 mm")),
    Sketcher.Constraint("DistanceX", -1, 1, 37, 3, Q("8.75 mm")),
    Sketcher.Constraint("DistanceX", -1, 1, 61, 3, Q("40.25 mm")),
    Sketcher.Constraint("DistanceX", -1, 1, 63, 3, Q("41.75 mm")),
])
pocket2 = body.newObject("PartDesign::Pocket", "Pocket001")
pocket2.Profile = sketch7
pocket2.Length = 10

sketch8 = body.newObject("Sketcher::SketchObject", "Sketch007")
sketch8.AttachmentSupport = (doc.getObject("XY_Plane"), [""])
sketch8.MapMode = "FlatFace"
sketch8.AttachmentOffset = App.Placement(V(0, 0, 2), App.Rotation())
sketch8.addGeometry([
    Part.Circle(V(25.25, 56, 0), V(0, 0, 1), 0.25),
    Part.Circle(V(25.25, 56.75, 0), V(0, 0, 1), 0.25),
    Part.Circle(V(25.25, 57.5, 0), V(0, 0, 1), 0.25),
    Part.Circle(V(25.25, 58.25, 0), V(0, 0, 1), 0.25),
    Part.Circle(V(25.25, 59, 0), V(0, 0, 1), 0.25),
    Part.Circle(V(25.25, 59.75, 0), V(0, 0, 1), 0.25),
    Part.Circle(V(25.25, 60.5, 0), V(0, 0, 1), 0.25),
    Part.Circle(V(25.25, 61.25, 0), V(0, 0, 1), 0.25),
    Part.Circle(V(25.25, 62, 0), V(0, 0, 1), 0.25),
    Part.Circle(V(25.25, 62.75, 0), V(0, 0, 1), 0.25),
    Part.Circle(V(25.25, 63.5, 0), V(0, 0, 1), 0.25),
    Part.Circle(V(25.25, 64.25, 0), V(0, 0, 1), 0.25),
    Part.Circle(V(25.25, 65, 0), V(0, 0, 1), 0.25),
    Part.Circle(V(29.75, 65, 0), V(0, 0, 1), 0.25),
    Part.Circle(V(29.75, 64.25, 0), V(0, 0, 1), 0.25),
    Part.Circle(V(29.75, 63.5, 0), V(0, 0, 1), 0.25),
    Part.Circle(V(29.75, 62.75, 0), V(0, 0, 1), 0.25),
    Part.Circle(V(29.75, 62, 0), V(0, 0, 1), 0.25),
    Part.Circle(V(29.75, 61.25, 0), V(0, 0, 1), 0.25),
    Part.Circle(V(29.75, 60.5, 0), V(0, 0, 1), 0.25),
    Part.Circle(V(29.75, 59.75, 0), V(0, 0, 1), 0.25),
    Part.Circle(V(29.75, 59, 0), V(0, 0, 1), 0.25),
    Part.Circle(V(29.75, 58.25, 0), V(0, 0, 1), 0.25),
    Part.Circle(V(29.75, 57.5, 0), V(0, 0, 1), 0.25),
    Part.Circle(V(29.75, 56.75, 0), V(0, 0, 1), 0.25),
    Part.Circle(V(29.75, 56, 0), V(0, 0, 1), 0.25),
], False)
sketch8.addConstraint([
    Sketcher.Constraint("Equal", 0, 1),
    Sketcher.Constraint("Equal", 1, 2),
    Sketcher.Constraint("Equal", 2, 3),
    Sketcher.Constraint("Equal", 3, 4),
    Sketcher.Constraint("Equal", 4, 5),
    Sketcher.Constraint("Equal", 5, 6),
    Sketcher.Constraint("Equal", 6, 7),
    Sketcher.Constraint("Equal", 7, 8),
    Sketcher.Constraint("Equal", 8, 9),
    Sketcher.Constraint("Equal", 9, 10),
    Sketcher.Constraint("Equal", 10, 11),
    Sketcher.Constraint("Equal", 11, 12),
    Sketcher.Constraint("Equal", 12, 13),
    Sketcher.Constraint("Equal", 13, 14),
    Sketcher.Constraint("Equal", 14, 15),
    Sketcher.Constraint("Equal", 15, 16),
    Sketcher.Constraint("Equal", 16, 17),
    Sketcher.Constraint("Equal", 17, 18),
    Sketcher.Constraint("Equal", 18, 19),
    Sketcher.Constraint("Equal", 19, 20),
    Sketcher.Constraint("Equal", 20, 21),
    Sketcher.Constraint("Equal", 21, 22),
    Sketcher.Constraint("Equal", 22, 23),
    Sketcher.Constraint("Equal", 23, 24),
    Sketcher.Constraint("Equal", 24, 25),
    Sketcher.Constraint("Horizontal", 12, 3, 13, 3),
    Sketcher.Constraint("Horizontal", 11, 3, 14, 3),
    Sketcher.Constraint("Horizontal", 10, 3, 15, 3),
    Sketcher.Constraint("Horizontal", 9, 3, 16, 3),
    Sketcher.Constraint("Horizontal", 8, 3, 17, 3),
    Sketcher.Constraint("Horizontal", 7, 3, 18, 3),
    Sketcher.Constraint("Horizontal", 6, 3, 19, 3),
    Sketcher.Constraint("Horizontal", 5, 3, 20, 3),
    Sketcher.Constraint("Horizontal", 4, 3, 21, 3),
    Sketcher.Constraint("Horizontal", 3, 3, 22, 3),
    Sketcher.Constraint("Horizontal", 2, 3, 23, 3),
    Sketcher.Constraint("Horizontal", 1, 3, 24, 3),
    Sketcher.Constraint("Horizontal", 0, 3, 25, 3),
    Sketcher.Constraint("Vertical", 0, 3, 1, 3),
    Sketcher.Constraint("Vertical", 1, 3, 2, 3),
    Sketcher.Constraint("Vertical", 2, 3, 3, 3),
    Sketcher.Constraint("Vertical", 3, 3, 4, 3),
    Sketcher.Constraint("Vertical", 4, 3, 5, 3),
    Sketcher.Constraint("Vertical", 5, 3, 6, 3),
    Sketcher.Constraint("Vertical", 6, 3, 7, 3),
    Sketcher.Constraint("Vertical", 7, 3, 8, 3),
    Sketcher.Constraint("Vertical", 8, 3, 9, 3),
    Sketcher.Constraint("Vertical", 9, 3, 10, 3),
    Sketcher.Constraint("Vertical", 10, 3, 11, 3),
    Sketcher.Constraint("Vertical", 11, 3, 12, 3),
    Sketcher.Constraint("Vertical", 13, 3, 14, 3),
    Sketcher.Constraint("Vertical", 14, 3, 15, 3),
    Sketcher.Constraint("Vertical", 15, 3, 16, 3),
    Sketcher.Constraint("Vertical", 16, 3, 17, 3),
    Sketcher.Constraint("Vertical", 17, 3, 18, 3),
    Sketcher.Constraint("Vertical", 18, 3, 19, 3),
    Sketcher.Constraint("Vertical", 19, 3, 20, 3),
    Sketcher.Constraint("Vertical", 20, 3, 21, 3),
    Sketcher.Constraint("Vertical", 21, 3, 22, 3),
    Sketcher.Constraint("Vertical", 22, 3, 23, 3),
    Sketcher.Constraint("Vertical", 23, 3, 24, 3),
    Sketcher.Constraint("Vertical", 24, 3, 25, 3),
    Sketcher.Constraint("Diameter", 0, Q("0.5 mm")),
    Sketcher.Constraint("DistanceY", -1, 1, 0, 3, Q("56 mm")),
    Sketcher.Constraint("DistanceY", -1, 1, 4, 3, Q("59 mm")),
    Sketcher.Constraint("DistanceY", -1, 1, 8, 3, Q("62 mm")),
    Sketcher.Constraint("DistanceY", -1, 1, 12, 3, Q("65 mm")),
    Sketcher.Constraint("DistanceY", 1, 3, 5, 3, Q("3 mm")),
    Sketcher.Constraint("DistanceY", 2, 3, 6, 3, Q("3 mm")),
    Sketcher.Constraint("DistanceY", 3, 3, 7, 3, Q("3 mm")),
    Sketcher.Constraint("DistanceY", 5, 3, 9, 3, Q("3 mm")),
    Sketcher.Constraint("DistanceY", 6, 3, 10, 3, Q("3 mm")),
    Sketcher.Constraint("DistanceY", 7, 3, 11, 3, Q("3 mm")),
    Sketcher.Constraint("DistanceY", -1, 1, 2, 3, Q("57.5 mm")),
    Sketcher.Constraint("DistanceY", 1, 3, 3, 3, Q("1.5 mm")),
    Sketcher.Constraint("DistanceX", 12, 3, 13, 3, Q("4.5 mm")),
    Sketcher.Constraint("DistanceX", -1, 1, 0, 3, Q("25.25 mm")),
    Sketcher.Constraint("DistanceY", -1, 1, 1, 3, Q("56.75 mm")),
])
pocket3 = body.newObject("PartDesign::Pocket", "Pocket002")
pocket3.Profile = sketch8
pocket3.Length = 10

doc.recompute()
